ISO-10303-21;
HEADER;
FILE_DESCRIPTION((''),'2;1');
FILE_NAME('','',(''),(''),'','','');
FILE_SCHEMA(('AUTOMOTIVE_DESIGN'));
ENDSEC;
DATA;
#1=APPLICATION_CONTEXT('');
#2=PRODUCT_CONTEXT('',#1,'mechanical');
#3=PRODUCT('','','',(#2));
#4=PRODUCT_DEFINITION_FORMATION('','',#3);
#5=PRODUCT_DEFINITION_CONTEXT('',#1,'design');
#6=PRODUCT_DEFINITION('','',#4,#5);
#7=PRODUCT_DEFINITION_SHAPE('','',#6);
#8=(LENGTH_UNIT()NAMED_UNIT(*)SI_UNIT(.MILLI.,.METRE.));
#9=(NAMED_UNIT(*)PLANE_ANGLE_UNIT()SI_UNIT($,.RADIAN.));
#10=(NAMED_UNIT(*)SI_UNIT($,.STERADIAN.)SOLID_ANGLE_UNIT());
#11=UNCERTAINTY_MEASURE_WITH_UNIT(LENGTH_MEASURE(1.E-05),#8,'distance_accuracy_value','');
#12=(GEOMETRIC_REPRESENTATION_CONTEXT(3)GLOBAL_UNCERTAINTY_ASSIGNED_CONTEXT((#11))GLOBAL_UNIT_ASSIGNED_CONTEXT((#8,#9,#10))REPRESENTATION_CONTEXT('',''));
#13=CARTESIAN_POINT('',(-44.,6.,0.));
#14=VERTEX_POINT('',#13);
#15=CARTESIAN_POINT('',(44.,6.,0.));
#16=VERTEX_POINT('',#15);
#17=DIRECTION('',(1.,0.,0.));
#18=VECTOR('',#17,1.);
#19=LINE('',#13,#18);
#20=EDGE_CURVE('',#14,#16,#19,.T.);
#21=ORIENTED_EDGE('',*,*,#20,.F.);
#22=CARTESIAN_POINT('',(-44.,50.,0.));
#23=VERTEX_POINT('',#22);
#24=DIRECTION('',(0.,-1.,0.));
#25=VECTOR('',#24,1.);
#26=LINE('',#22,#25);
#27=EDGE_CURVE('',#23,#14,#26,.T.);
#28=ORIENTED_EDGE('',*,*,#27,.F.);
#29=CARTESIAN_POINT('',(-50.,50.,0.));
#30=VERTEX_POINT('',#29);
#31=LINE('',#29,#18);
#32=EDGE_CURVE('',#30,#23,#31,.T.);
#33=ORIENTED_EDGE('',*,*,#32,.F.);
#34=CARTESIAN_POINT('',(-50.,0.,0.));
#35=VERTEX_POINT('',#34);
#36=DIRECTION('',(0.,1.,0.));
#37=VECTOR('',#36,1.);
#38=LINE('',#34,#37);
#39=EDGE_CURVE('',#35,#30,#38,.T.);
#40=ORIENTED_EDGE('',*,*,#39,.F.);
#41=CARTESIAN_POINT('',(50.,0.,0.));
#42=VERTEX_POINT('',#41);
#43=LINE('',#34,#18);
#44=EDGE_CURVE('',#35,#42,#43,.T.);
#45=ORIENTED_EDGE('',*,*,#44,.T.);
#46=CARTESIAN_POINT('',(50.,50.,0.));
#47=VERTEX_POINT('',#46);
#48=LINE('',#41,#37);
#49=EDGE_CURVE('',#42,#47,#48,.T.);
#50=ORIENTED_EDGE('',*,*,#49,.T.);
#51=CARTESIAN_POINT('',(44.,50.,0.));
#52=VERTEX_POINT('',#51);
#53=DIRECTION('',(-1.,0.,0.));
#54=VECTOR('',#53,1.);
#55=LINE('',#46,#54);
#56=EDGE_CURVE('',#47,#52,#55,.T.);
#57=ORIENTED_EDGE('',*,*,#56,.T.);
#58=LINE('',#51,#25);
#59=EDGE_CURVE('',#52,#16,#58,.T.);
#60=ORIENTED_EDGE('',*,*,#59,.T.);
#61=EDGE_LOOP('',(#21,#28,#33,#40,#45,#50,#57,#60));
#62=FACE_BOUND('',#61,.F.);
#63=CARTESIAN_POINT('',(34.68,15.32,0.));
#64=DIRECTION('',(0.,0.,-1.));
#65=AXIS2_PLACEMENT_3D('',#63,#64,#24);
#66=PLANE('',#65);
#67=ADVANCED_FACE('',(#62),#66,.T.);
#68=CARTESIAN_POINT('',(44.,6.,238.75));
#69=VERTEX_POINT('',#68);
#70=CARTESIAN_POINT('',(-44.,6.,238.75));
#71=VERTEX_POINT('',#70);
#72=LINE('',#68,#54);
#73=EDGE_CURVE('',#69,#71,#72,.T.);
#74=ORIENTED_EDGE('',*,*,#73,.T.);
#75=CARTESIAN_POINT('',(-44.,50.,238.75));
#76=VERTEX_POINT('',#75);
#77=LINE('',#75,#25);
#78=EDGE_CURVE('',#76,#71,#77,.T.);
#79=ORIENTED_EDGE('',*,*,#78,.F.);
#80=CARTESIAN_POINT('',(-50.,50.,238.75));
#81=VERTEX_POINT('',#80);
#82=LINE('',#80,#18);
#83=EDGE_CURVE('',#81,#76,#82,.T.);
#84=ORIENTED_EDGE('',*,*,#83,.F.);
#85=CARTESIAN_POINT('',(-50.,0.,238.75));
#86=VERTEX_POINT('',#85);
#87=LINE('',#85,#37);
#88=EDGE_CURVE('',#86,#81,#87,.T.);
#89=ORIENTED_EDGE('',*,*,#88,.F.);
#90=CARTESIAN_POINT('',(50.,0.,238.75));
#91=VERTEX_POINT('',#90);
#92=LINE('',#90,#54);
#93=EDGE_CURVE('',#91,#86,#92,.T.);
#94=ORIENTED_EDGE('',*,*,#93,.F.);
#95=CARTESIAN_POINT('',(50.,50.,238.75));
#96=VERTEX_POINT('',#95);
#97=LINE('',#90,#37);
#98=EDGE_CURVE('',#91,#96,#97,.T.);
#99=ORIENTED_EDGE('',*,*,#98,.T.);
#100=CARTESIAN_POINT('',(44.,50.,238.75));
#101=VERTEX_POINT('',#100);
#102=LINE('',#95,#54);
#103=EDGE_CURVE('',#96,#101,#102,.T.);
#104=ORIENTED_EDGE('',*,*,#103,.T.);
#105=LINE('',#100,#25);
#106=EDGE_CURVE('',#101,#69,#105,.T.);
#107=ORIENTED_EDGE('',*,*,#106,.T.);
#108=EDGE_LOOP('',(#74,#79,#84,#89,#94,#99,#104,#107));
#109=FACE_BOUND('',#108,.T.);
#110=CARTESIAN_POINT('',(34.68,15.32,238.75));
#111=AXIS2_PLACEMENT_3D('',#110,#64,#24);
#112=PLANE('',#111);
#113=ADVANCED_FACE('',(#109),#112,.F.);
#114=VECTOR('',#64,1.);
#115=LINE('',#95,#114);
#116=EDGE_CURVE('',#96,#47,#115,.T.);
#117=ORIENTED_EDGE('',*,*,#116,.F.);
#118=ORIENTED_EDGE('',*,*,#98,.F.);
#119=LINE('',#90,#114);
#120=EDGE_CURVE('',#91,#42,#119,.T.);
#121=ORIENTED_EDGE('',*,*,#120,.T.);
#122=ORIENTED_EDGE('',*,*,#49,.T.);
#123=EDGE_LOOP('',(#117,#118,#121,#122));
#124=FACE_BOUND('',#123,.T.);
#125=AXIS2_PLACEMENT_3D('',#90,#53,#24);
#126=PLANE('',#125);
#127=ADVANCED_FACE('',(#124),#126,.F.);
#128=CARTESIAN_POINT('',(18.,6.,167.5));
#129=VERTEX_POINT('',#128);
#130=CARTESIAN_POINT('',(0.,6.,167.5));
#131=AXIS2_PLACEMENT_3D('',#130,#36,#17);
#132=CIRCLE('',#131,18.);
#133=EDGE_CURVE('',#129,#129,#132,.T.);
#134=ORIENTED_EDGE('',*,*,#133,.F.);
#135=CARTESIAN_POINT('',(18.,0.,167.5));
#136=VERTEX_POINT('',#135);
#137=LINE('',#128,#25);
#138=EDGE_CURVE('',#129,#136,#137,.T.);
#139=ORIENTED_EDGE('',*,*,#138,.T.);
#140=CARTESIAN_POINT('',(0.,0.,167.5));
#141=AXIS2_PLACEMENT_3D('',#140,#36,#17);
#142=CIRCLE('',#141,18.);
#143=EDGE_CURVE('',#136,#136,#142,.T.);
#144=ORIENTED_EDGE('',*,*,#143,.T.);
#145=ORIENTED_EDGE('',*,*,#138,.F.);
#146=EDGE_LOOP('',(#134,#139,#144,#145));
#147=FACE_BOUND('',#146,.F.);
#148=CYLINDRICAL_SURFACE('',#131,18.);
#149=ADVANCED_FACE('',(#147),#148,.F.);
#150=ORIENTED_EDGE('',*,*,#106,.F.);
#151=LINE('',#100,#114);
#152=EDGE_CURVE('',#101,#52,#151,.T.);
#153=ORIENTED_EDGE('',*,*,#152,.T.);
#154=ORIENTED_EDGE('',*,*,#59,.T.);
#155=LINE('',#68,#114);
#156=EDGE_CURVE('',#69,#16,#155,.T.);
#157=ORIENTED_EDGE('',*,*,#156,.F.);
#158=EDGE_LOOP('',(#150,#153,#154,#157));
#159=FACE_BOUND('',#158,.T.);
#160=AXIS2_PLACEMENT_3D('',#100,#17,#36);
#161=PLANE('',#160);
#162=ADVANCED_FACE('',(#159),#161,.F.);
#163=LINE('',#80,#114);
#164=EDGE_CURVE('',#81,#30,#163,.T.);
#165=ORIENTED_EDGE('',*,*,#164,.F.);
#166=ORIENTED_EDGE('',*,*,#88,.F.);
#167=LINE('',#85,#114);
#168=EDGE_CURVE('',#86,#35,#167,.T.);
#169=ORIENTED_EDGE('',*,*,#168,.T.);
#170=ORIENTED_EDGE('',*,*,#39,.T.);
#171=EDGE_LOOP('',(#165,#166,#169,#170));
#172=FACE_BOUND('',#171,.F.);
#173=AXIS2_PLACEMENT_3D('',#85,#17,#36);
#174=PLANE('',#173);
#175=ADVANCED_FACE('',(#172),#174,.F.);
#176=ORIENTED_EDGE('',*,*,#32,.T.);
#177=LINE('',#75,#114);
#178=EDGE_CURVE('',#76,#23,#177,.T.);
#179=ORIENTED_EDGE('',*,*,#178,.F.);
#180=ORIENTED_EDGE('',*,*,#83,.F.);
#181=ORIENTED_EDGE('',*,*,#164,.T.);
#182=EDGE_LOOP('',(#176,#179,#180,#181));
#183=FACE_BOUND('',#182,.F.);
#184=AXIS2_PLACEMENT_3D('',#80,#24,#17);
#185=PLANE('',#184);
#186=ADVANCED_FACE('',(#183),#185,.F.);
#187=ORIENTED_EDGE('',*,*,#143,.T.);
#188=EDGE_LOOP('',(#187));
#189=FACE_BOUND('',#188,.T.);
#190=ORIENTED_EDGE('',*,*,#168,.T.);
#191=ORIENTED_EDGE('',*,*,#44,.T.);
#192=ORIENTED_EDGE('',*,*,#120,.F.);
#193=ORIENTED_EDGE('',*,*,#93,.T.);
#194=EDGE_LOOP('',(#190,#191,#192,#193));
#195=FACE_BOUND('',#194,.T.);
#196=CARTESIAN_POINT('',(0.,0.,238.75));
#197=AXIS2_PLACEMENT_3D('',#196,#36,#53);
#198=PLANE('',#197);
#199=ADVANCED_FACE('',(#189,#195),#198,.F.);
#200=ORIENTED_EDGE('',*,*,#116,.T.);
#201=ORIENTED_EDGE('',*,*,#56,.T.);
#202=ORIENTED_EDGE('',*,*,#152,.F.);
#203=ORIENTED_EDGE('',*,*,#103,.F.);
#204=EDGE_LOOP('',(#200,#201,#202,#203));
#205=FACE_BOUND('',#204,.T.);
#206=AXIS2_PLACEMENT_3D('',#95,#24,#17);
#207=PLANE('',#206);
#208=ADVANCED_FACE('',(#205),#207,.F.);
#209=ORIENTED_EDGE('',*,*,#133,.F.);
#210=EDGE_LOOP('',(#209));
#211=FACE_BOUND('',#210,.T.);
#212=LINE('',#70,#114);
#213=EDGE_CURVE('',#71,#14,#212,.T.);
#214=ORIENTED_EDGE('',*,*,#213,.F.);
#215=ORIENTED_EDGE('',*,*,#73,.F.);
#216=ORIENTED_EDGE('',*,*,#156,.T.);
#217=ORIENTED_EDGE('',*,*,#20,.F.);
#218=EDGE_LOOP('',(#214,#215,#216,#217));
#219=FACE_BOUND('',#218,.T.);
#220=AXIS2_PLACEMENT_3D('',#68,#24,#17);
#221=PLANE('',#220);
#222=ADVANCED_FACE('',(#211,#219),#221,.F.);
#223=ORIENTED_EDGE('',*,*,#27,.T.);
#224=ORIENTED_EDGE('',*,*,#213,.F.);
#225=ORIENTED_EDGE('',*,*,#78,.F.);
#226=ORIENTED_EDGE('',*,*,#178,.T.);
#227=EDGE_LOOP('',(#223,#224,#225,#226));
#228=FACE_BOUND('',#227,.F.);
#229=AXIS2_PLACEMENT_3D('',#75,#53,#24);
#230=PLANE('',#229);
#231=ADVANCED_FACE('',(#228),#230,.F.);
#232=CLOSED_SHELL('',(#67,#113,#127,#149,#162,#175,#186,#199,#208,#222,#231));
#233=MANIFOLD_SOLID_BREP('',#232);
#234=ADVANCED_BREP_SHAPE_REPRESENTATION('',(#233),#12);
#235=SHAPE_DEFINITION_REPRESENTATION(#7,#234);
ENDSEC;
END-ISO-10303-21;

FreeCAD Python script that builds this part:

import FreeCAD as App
import Part
import Sketcher
Q = App.Units.Quantity

doc = App.newDocument("Part")
body = doc.addObject("PartDesign::Body", "Body")

sketch1 = doc.addObject("Sketcher::SketchObject", "Sketch")
body.addObject(sketch1)
sketch1.AttachmentSupport = (doc.XY_Plane, [""])
sketch1.MapMode = "FlatFace"
sketch1.addGeometry([
    Part.LineSegment(App.Vector(0, 50, 0), App.Vector(0, 0, 0)),
    Part.LineSegment(App.Vector(0, 0, 0), App.Vector(50, 0, 0)),
    Part.LineSegment(App.Vector(50, 0, 0), App.Vector(50, 6, 0)),
    Part.LineSegment(App.Vector(50, 6, 0), App.Vector(6, 6, 0)),
    Part.LineSegment(App.Vector(6, 6, 0), App.Vector(6, 50, 0)),
    Part.LineSegment(App.Vector(6, 50, 0), App.Vector(0, 50, 0)),
], False)
sketch1.addConstraint([
    Sketcher.Constraint("Coincident", 0, 2, 1, 1),
    Sketcher.Constraint("Coincident", 1, 2, 2, 1),
    Sketcher.Constraint("Coincident", 2, 2, 3, 1),
    Sketcher.Constraint("Coincident", 3, 2, 4, 1),
    Sketcher.Constraint("Coincident", 4, 2, 5, 1),
    Sketcher.Constraint("Coincident", 5, 2, 0, 1),
    Sketcher.Constraint("Vertical", 0),
    Sketcher.Constraint("Horizontal", 1),
    Sketcher.Constraint("Vertical", 2),
    Sketcher.Constraint("Horizontal", 3),
    Sketcher.Constraint("Vertical", 4),
    Sketcher.Constraint("Horizontal", 5),
    Sketcher.Constraint("Coincident", 0, 2, -1, 1),
    Sketcher.Constraint("Equal", 1, 0),
    Sketcher.Constraint("Equal", 5, 2),
    Sketcher.Constraint("DistanceX", 1, 1, 1, 2, Q("50 mm")),
    Sketcher.Constraint("DistanceX", 3, 2, 3, 1, Q("44 mm")),
])
pad1 = doc.addObject("PartDesign::Pad", "Pad")
body.addObject(pad1)
pad1.Profile = sketch1
pad1.Length = 238.75
doc.recompute()

datumplane = doc.addObject("PartDesign::Plane", "DatumPlane")
body.addObject(datumplane)
datumplane.AttachmentSupport = (doc.XZ_Plane, [""])
datumplane.MapMode = "FlatFace"
datumplane.AttachmentOffset = App.Placement(App.Vector(0, 0, -50), App.Rotation())
mirrored = doc.addObject("PartDesign::Mirrored", "Mirrored")
body.addObject(mirrored)
mirrored.Originals = [pad1]
mirrored.MirrorPlane = (datumplane, [""])
body.Tip = mirrored

sketch2 = doc.addObject("Sketcher::SketchObject", "Sketch001")
body.addObject(sketch2)
sketch2.AttachmentSupport = (doc.YZ_Plane, [""])
sketch2.MapMode = "FlatFace"
sketch2.AttachmentOffset = App.Placement(App.Vector(0, 0, 6), App.Rotation())
sketch2.addGeometry(Part.Circle(App.Vector(50, 71, 0), App.Vector(0, 0, 1), 18), False)
sketch2.addConstraint([
    Sketcher.Constraint("Diameter", 0, Q("36 mm")),
    Sketcher.Constraint("DistanceX", -1, 1, 0, 3, Q("50 mm")),
    Sketcher.Constraint("DistanceY", -1, 1, 0, 3, Q("71.25 mm")),
])
pocket1 = doc.addObject("PartDesign::Pocket", "Pocket")
body.addObject(pocket1)
pocket1.Profile = sketch2
pocket1.Length = 6
body2 = doc.addObject("PartDesign::Body", "Body001")
doc.recompute()

body.Placement = App.Placement(App.Vector(0, 0, 0), App.Rotation(App.Vector(1, 0, 0), 180))
boolean = doc.addObject("PartDesign::Boolean", "Boolean")
body2.addObject(boolean)
boolean.Type = "Fuse"
boolean.addObjects([body])
body3 = doc.addObject("PartDesign::Body", "Body002")
doc.recompute()

body2.Placement = App.Placement(App.Vector(-50, 0, 238.75), App.Rotation(App.Vector(0, 0, 1), 90))
boolean2 = doc.addObject("PartDesign::Boolean", "Boolean001")
body3.addObject(boolean2)
boolean2.Type = "Fuse"
boolean2.addObjects([body2])

doc.recompute()
